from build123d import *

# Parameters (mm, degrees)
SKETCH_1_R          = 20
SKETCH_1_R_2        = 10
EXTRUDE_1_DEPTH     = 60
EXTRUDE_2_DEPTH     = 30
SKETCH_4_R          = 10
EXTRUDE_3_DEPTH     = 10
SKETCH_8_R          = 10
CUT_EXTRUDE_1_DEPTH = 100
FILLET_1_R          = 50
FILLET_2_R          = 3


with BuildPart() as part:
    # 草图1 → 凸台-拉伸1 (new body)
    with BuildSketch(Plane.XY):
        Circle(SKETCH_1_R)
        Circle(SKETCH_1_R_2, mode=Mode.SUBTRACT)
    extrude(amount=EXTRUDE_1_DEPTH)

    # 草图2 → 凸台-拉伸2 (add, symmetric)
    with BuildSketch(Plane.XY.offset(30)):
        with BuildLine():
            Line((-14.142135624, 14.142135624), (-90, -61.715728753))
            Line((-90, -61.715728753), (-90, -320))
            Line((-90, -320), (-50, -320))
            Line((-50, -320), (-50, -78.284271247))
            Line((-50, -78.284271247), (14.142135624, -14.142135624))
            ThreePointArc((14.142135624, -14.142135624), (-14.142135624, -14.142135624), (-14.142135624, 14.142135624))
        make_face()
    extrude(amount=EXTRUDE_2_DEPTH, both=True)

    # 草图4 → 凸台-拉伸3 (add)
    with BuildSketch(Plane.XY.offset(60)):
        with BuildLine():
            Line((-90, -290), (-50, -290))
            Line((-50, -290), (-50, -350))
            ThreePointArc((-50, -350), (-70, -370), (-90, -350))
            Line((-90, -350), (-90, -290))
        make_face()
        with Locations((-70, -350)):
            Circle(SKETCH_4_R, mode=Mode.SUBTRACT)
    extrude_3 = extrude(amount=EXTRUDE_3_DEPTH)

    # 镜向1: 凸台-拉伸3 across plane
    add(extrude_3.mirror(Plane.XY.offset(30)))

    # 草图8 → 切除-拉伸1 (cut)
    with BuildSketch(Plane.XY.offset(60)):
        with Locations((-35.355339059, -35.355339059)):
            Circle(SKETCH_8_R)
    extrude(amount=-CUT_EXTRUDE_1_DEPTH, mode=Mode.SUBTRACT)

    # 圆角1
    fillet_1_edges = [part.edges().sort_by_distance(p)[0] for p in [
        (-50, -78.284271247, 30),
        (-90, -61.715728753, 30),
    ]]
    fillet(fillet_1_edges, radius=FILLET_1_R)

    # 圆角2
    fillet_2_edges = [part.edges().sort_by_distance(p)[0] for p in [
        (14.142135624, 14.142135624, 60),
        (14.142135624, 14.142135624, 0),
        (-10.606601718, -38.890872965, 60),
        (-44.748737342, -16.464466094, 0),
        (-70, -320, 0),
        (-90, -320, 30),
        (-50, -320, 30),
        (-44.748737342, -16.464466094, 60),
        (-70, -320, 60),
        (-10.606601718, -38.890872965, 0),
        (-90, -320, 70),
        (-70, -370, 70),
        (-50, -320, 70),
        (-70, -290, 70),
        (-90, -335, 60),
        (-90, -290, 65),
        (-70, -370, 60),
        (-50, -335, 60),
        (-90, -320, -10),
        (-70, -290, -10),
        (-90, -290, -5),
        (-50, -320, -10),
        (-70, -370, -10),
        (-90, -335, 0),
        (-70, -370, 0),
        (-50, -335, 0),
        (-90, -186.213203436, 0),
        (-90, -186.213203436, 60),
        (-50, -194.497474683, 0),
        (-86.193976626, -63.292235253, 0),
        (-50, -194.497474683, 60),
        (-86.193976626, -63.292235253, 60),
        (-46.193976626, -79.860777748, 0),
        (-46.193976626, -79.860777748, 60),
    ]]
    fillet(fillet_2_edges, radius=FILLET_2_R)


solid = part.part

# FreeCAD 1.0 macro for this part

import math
import FreeCAD as App
import Part
import Sketcher
from FreeCAD import Vector
Q = App.Units.Quantity


def edges_at(feature, points):
    """Names of the edges that pass closest to the given points."""
    edges = feature.Shape.Edges
    near = lambda p: min(range(len(edges)), key=lambda i: edges[i].distToShape(Part.Vertex(*p))[0])
    return sorted({f"Edge{near(p) + 1}" for p in points})

doc = App.newDocument("Part")
body = doc.addObject("PartDesign::Body", "Body")

sketch1 = body.newObject("Sketcher::SketchObject", "Sketch")
sketch1.AttachmentSupport = (doc.getObject("XY_Plane"), [""])
sketch1.MapMode = "FlatFace"
sketch1.addGeometry([
    Part.Circle(Vector(0, 0, 0), Vector(0, 0, 1), 20),
    Part.Circle(Vector(0, 0, 0), Vector(0, 0, 1), 10),
], False)
sketch1.addConstraint([
    Sketcher.Constraint("Coincident", 0, 3, -1, 1),
    Sketcher.Constraint("Coincident", 1, 3, -1, 1),
    Sketcher.Constraint("Diameter", 0, Q("40 mm")),
    Sketcher.Constraint("Diameter", 1, Q("20 mm")),
])
pad1 = body.newObject("PartDesign::Pad", "Pad")
pad1.Profile = sketch1
pad1.Length = 60

sketch2 = body.newObject("Sketcher::SketchObject", "Sketch001")
sketch2.AttachmentSupport = (doc.getObject("XY_Plane"), [""])
sketch2.MapMode = "FlatFace"
sketch2.AttachmentOffset = App.Placement(Vector(0, 0, 30), App.Rotation())
sketch2.addGeometry([
    Part.LineSegment(Vector(-14.142136, 14.142136, 0), Vector(-90, -61.715729, 0)),
    Part.LineSegment(Vector(-90, -61.715729, 0), Vector(-90, -320, 0)),
    Part.LineSegment(Vector(-90, -320, 0), Vector(-50, -320, 0)),
    Part.LineSegment(Vector(-50, -320, 0), Vector(-50, -78.284271, 0)),
    Part.LineSegment(Vector(-50, -78.284271, 0), Vector(14.142136, -14.142136, 0)),
    Part.ArcOfCircle(Part.Circle(Vector(0, 0, 0), Vector(0, 0, 1), 20), math.radians(135), math.radians(315)),
], False)
sketch2.addConstraint([
    Sketcher.Constraint("Coincident", 0, 2, 1, 1),
    Sketcher.Constraint("Coincident", 1, 2, 2, 1),
    Sketcher.Constraint("Coincident", 2, 2, 3, 1),
    Sketcher.Constraint("Coincident", 3, 2, 4, 1),
    Sketcher.Constraint("Tangent", 4, 2, 5, 2),
    Sketcher.Constraint("Tangent", 5, 1, 0, 1),
    Sketcher.Constraint("Vertical", 1),
    Sketcher.Constraint("Horizontal", 2),
    Sketcher.Constraint("Vertical", 3),
    Sketcher.Constraint("Coincident", 5, 3, -1, 1),
    Sketcher.Constraint("Parallel", 0, 4),
    Sketcher.Constraint("Radius", 5, Q("20 mm")),
    Sketcher.Constraint("DistanceX", 2, 1, 2, 2, Q("40 mm")),
    Sketcher.Constraint("Angle", 0, Q("-135 deg")),
    Sketcher.Constraint("DistanceX", 0, 2, -1, 1, Q("90 mm")),
    Sketcher.Constraint("DistanceY", 1, 2, -1, 1, Q("320 mm")),
])
pad2 = body.newObject("PartDesign::Pad", "Pad001")
pad2.Profile = sketch2
pad2.Length = 60
pad2.Midplane = True

sketch3 = body.newObject("Sketcher::SketchObject", "Sketch002")
sketch3.AttachmentSupport = (doc.getObject("XY_Plane"), [""])
sketch3.MapMode = "FlatFace"
sketch3.AttachmentOffset = App.Placement(Vector(0, 0, 60), App.Rotation())
sketch3.addGeometry([
    Part.LineSegment(Vector(-50, -290, 0), Vector(-90, -290, 0)),
    Part.LineSegment(Vector(-90, -290, 0), Vector(-90, -350, 0)),
    Part.ArcOfCircle(Part.Circle(Vector(-70, -350, 0), Vector(0, 0, 1), 20), math.radians(180), math.radians(360)),
    Part.LineSegment(Vector(-50, -350, 0), Vector(-50, -290, 0)),
    Part.Circle(Vector(-70, -350, 0), Vector(0, 0, 1), 10),
], False)
sketch3.addConstraint([
    Sketcher.Constraint("Coincident", 0, 2, 1, 1),
    Sketcher.Constraint("Tangent", 1, 2, 2, 1),
    Sketcher.Constraint("Tangent", 2, 2, 3, 1),
    Sketcher.Constraint("Coincident", 3, 2, 0, 1),
    Sketcher.Constraint("Horizontal", 0),
    Sketcher.Constraint("Vertical", 1),
    Sketcher.Constraint("Vertical", 3),
    Sketcher.Constraint("Coincident", 4, 3, 2, 3),
    Sketcher.Constraint("Diameter", 4, Q("20 mm")),
    Sketcher.Constraint("Radius", 2, Q("20 mm")),
    Sketcher.Constraint("DistanceY", 1, 2, 1, 1, Q("60 mm")),
    Sketcher.Constraint("DistanceX", 2, 3, -1, 1, Q("70 mm")),
    Sketcher.Constraint("DistanceY", 2, 3, -1, 1, Q("350 mm")),
])
pad3 = body.newObject("PartDesign::Pad", "Pad002")
pad3.Profile = sketch3
pad3.Length = 10
doc.recompute()

datumplane = body.newObject("PartDesign::Plane", "DatumPlane")
datumplane.AttachmentSupport = (doc.getObject("XY_Plane"), [""])
datumplane.MapMode = "FlatFace"
datumplane.AttachmentOffset = App.Placement(Vector(0, 0, 30), App.Rotation())
mirrored = body.newObject("PartDesign::Mirrored", "Mirrored")
mirrored.Originals = [pad3]
mirrored.MirrorPlane = (datumplane, [""])
body.Tip = mirrored

sketch4 = body.newObject("Sketcher::SketchObject", "Sketch003")
sketch4.AttachmentSupport = (doc.getObject("XY_Plane"), [""])
sketch4.MapMode = "FlatFace"
sketch4.AttachmentOffset = App.Placement(Vector(0, 0, 60), App.Rotation())
sketch4.addGeometry(Part.Circle(Vector(-35.355339, -35.355339, 0), Vector(0, 0, 1), 10), False)
sketch4.addConstraint([
    Sketcher.Constraint("Diameter", 0, Q("20 mm")),
    Sketcher.Constraint("DistanceX", 0, 3, -1, 1, Q("35.355339 mm")),
    Sketcher.Constraint("DistanceY", 0, 3, -1, 1, Q("35.355339 mm")),
])
pocket1 = body.newObject("PartDesign::Pocket", "Pocket")
pocket1.Profile = sketch4
pocket1.Length = 100
doc.recompute()

fillet = body.newObject("PartDesign::Fillet", "Fillet")
fillet.Base = (pocket1, edges_at(pocket1, [(-50, -78.284, 30), (-90, -61.716, 30)]))
fillet.Radius = 50
doc.recompute()

fillet2 = body.newObject("PartDesign::Fillet", "Fillet001")
fillet2.Base = (fillet, edges_at(fillet, [
    (14.142, 14.142, 60),
    (14.142, 14.142, 0),
    (-10.607, -38.891, 60),
    (-44.749, -16.464, 0),
    (-70, -320, 0),
    (-90, -320, 30),
    (-50, -320, 30),
    (-44.749, -16.464, 60),
    (-70, -320, 60),
    (-10.607, -38.891, 0),
    (-90, -320, 70),
    (-70, -370, 70),
    (-50, -320, 70),
    (-70, -290, 70),
    (-90, -335, 60),
    (-90, -290, 65),
    (-70, -370, 60),
    (-50, -335, 60),
    (-90, -320, -10),
    (-70, -290, -10),
    (-90, -290, -5),
    (-50, -320, -10),
    (-70, -370, -10),
    (-90, -335, 0),
    (-70, -370, 0),
    (-50, -335, 0),
    (-90, -186.213, 0),
    (-90, -186.213, 60),
    (-50, -194.497, 0),
    (-86.194, -63.292, 0),
    (-50, -194.497, 60),
    (-86.194, -63.292, 60),
    (-46.194, -79.861, 0),
    (-46.194, -79.861, 60),
]))
fillet2.Radius = 3

doc.recompute()
